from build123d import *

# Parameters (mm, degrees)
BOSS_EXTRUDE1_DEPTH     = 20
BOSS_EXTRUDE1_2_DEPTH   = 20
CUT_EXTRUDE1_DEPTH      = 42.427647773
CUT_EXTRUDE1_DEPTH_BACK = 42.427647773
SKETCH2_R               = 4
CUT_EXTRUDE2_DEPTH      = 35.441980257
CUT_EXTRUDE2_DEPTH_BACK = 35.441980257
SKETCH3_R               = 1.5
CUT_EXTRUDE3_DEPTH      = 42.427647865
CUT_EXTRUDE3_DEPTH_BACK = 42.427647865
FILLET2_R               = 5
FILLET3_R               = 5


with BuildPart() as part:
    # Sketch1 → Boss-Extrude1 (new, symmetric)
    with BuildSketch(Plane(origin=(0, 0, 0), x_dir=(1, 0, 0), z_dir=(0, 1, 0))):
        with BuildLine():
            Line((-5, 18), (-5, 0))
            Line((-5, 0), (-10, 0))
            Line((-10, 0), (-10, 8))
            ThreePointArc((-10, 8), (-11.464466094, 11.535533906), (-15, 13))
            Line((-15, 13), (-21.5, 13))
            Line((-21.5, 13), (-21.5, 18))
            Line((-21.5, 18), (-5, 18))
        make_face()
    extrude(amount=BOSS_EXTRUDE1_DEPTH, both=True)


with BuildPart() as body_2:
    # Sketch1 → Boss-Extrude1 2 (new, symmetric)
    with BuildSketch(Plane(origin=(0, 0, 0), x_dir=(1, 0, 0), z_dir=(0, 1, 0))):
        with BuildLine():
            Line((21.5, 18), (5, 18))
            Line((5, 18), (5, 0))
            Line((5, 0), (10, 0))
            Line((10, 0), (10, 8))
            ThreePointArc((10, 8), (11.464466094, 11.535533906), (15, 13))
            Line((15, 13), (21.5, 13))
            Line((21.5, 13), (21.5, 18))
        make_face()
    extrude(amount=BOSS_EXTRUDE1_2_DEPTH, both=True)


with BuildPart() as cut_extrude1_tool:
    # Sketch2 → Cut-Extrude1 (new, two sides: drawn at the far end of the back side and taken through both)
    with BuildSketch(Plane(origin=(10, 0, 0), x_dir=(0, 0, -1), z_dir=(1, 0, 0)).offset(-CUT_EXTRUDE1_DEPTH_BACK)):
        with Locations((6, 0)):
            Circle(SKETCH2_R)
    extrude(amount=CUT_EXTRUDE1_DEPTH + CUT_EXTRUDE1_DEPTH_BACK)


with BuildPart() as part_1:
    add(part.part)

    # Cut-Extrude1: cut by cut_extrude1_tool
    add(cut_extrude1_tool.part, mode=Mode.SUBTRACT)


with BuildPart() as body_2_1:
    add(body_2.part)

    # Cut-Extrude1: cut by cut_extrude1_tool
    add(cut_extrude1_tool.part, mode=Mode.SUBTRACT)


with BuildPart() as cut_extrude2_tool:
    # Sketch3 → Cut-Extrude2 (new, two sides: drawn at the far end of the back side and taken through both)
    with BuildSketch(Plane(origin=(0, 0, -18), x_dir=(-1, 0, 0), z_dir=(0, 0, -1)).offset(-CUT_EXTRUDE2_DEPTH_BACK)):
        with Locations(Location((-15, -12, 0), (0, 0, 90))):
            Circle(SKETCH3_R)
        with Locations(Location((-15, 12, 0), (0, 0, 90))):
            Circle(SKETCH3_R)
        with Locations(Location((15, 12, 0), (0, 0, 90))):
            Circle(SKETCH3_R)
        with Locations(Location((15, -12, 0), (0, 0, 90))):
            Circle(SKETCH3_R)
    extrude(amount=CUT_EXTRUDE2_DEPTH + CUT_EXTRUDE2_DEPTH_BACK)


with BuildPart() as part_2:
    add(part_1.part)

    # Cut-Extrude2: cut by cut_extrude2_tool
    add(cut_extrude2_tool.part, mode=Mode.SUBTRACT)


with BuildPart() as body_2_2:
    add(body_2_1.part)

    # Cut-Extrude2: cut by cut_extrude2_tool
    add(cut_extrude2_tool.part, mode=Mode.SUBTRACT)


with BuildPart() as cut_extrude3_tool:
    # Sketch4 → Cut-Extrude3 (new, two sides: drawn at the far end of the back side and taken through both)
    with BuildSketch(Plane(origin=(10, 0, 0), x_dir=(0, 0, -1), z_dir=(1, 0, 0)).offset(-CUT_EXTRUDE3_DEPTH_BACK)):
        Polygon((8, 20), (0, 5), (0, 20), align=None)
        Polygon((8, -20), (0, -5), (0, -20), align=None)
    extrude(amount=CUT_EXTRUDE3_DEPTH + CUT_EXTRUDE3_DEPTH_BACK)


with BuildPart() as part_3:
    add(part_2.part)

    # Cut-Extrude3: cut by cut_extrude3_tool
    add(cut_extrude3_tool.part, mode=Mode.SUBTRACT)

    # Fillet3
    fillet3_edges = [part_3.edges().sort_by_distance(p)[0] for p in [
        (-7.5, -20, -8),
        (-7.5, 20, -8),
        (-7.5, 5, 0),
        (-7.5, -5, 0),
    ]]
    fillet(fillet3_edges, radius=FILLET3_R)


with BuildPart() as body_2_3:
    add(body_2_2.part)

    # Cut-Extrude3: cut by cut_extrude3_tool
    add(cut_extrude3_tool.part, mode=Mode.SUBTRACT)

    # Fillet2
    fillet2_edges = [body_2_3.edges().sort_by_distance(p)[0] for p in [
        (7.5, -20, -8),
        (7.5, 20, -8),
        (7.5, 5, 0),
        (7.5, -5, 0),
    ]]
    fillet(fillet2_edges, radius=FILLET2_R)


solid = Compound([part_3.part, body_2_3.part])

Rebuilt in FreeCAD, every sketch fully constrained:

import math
import FreeCAD as App
import Part
import Sketcher

V = App.Vector


def edges_at(feature, points):
    """Names of the edges that pass closest to the given points."""
    edges = feature.Shape.Edges
    near = lambda p: min(range(len(edges)), key=lambda i: edges[i].distToShape(Part.Vertex(*p))[0])
    return sorted({f"Edge{near(p) + 1}" for p in points})

doc = App.newDocument("Part")
params = doc.addObject("Spreadsheet::Sheet", "Params")
for row, (alias, value) in enumerate([
    ("sketch1_radius", "5 mm"),
    ("sketch1_width", "5 mm"),
    ("sketch1_height", "18 mm"),
    ("sketch1_width2", "16.5 mm"),
    ("pad1_length", "40 mm"),
    ("sketch2_radius", "5 mm"),
    ("sketch2_width", "5 mm"),
    ("sketch2_height", "18 mm"),
    ("sketch2_width2", "16.5 mm"),
    ("pad2_length", "40 mm"),
    ("sketch3_diameter", "8 mm"),
    ("pad3_length", "42.427648 mm"),
    ("pad3_length2", "42.427648 mm"),
    ("sketch4_diameter", "3 mm"),
    ("pad4_length", "35.44198 mm"),
    ("pad4_length2", "35.44198 mm"),
    ("sketch5_width", "15 mm"),
    ("sketch5_height", "8 mm"),
    ("pad5_length", "42.427648 mm"),
    ("pad5_length2", "42.427648 mm"),
    ("fillet_radius", "5 mm"),
    ("fillet2_radius", "5 mm"),
], start=1):
    params.set(f"A{row}", alias)
    params.set(f"B{row}", "=" + value)
    params.setAlias(f"B{row}", alias)

body = doc.addObject("PartDesign::Body", "Body")

sketch1 = body.newObject("Sketcher::SketchObject", "Sketch")
sketch1.AttachmentSupport = (doc.getObject("XZ_Plane"), [""])
sketch1.MapMode = "FlatFace"
sketch1.addGeometry([
    Part.LineSegment(V(-5, 0, 0), V(-5, -18, 0)),
    Part.LineSegment(V(-5, -18, 0), V(-21.5, -18, 0)),
    Part.LineSegment(V(-21.5, -18, 0), V(-21.5, -13, 0)),
    Part.LineSegment(V(-21.5, -13, 0), V(-15, -13, 0)),
    Part.ArcOfCircle(Part.Circle(V(-15, -8, 0), V(0, 0, 1), 5), math.radians(-90), math.radians(0)),
    Part.LineSegment(V(-10, -8, 0), V(-10, 0, 0)),
    Part.LineSegment(V(-10, 0, 0), V(-5, 0, 0)),
], False)
sketch1.addConstraint([
    Sketcher.Constraint("Coincident", 0, 2, 1, 1),
    Sketcher.Constraint("Coincident", 1, 2, 2, 1),
    Sketcher.Constraint("Coincident", 2, 2, 3, 1),
    Sketcher.Constraint("Tangent", 3, 2, 4, 1),
    Sketcher.Constraint("Tangent", 4, 2, 5, 1),
    Sketcher.Constraint("Coincident", 5, 2, 6, 1),
    Sketcher.Constraint("Coincident", 6, 2, 0, 1),
    Sketcher.Constraint("Vertical", 0),
    Sketcher.Constraint("Horizontal", 1),
    Sketcher.Constraint("Vertical", 2),
    Sketcher.Constraint("Horizontal", 3),
    Sketcher.Constraint("Vertical", 5),
    Sketcher.Constraint("Horizontal", 6),
    Sketcher.Constraint("PointOnObject", 5, 2, -1),
    Sketcher.Constraint("Equal", 6, 2),
    Sketcher.Constraint("Radius", 4, 5.0),
    Sketcher.Constraint("DistanceX", 6, 1, 6, 2, 5.0),
    Sketcher.Constraint("DistanceY", 0, 2, 0, 1, 18.0),
    Sketcher.Constraint("DistanceX", 1, 2, 1, 1, 16.5),
    Sketcher.Constraint("DistanceX", 4, 3, -1, 1, 15.0),
])
sketch1.setExpression("Constraints[15]", "Params.sketch1_radius")
sketch1.setExpression("Constraints[16]", "Params.sketch1_width")
sketch1.setExpression("Constraints[17]", "Params.sketch1_height")
sketch1.setExpression("Constraints[18]", "Params.sketch1_width2")
pad1 = body.newObject("PartDesign::Pad", "Pad")
pad1.Profile = sketch1
pad1.setExpression("Length", "Params.pad1_length")
pad1.Midplane = True
body2 = doc.addObject("PartDesign::Body", "Body001")

sketch2 = body2.newObject("Sketcher::SketchObject", "Sketch001")
sketch2.AttachmentSupport = (doc.getObject("XZ_Plane001"), [""])
sketch2.MapMode = "FlatFace"
sketch2.addGeometry([
    Part.LineSegment(V(21.5, -18, 0), V(5, -18, 0)),
    Part.LineSegment(V(5, -18, 0), V(5, 0, 0)),
    Part.LineSegment(V(5, 0, 0), V(10, 0, 0)),
    Part.LineSegment(V(10, 0, 0), V(10, -8, 0)),
    Part.ArcOfCircle(Part.Circle(V(15, -8, 0), V(0, 0, 1), 5), math.radians(180), math.radians(270)),
    Part.LineSegment(V(15, -13, 0), V(21.5, -13, 0)),
    Part.LineSegment(V(21.5, -13, 0), V(21.5, -18, 0)),
], False)
sketch2.addConstraint([
    Sketcher.Constraint("Coincident", 0, 2, 1, 1),
    Sketcher.Constraint("Coincident", 1, 2, 2, 1),
    Sketcher.Constraint("Coincident", 2, 2, 3, 1),
    Sketcher.Constraint("Tangent", 3, 2, 4, 1),
    Sketcher.Constraint("Tangent", 4, 2, 5, 1),
    Sketcher.Constraint("Coincident", 5, 2, 6, 1),
    Sketcher.Constraint("Coincident", 6, 2, 0, 1),
    Sketcher.Constraint("Horizontal", 0),
    Sketcher.Constraint("Vertical", 1),
    Sketcher.Constraint("Horizontal", 2),
    Sketcher.Constraint("Vertical", 3),
    Sketcher.Constraint("Horizontal", 5),
    Sketcher.Constraint("Vertical", 6),
    Sketcher.Constraint("PointOnObject", 1, 2, -1),
    Sketcher.Constraint("Equal", 2, 6),
    Sketcher.Constraint("Radius", 4, 5.0),
    Sketcher.Constraint("DistanceX", 2, 1, 2, 2, 5.0),
    Sketcher.Constraint("DistanceY", 1, 1, 1, 2, 18.0),
    Sketcher.Constraint("DistanceX", 0, 2, 0, 1, 16.5),
    Sketcher.Constraint("DistanceX", -1, 1, 4, 3, 15.0),
])
sketch2.setExpression("Constraints[15]", "Params.sketch2_radius")
sketch2.setExpression("Constraints[16]", "Params.sketch2_width")
sketch2.setExpression("Constraints[17]", "Params.sketch2_height")
sketch2.setExpression("Constraints[18]", "Params.sketch2_width2")
pad2 = body2.newObject("PartDesign::Pad", "Pad001")
pad2.Profile = sketch2
pad2.setExpression("Length", "Params.pad2_length")
pad2.Midplane = True
body3 = doc.addObject("PartDesign::Body", "Body002")

sketch3 = body3.newObject("Sketcher::SketchObject", "Sketch002")
sketch3.AttachmentSupport = (doc.getObject("YZ_Plane002"), [""])
sketch3.MapMode = "FlatFace"
sketch3.AttachmentOffset = App.Placement(V(0, 0, 10), App.Rotation())
sketch3.addGeometry(Part.Circle(V(0, -6, 0), V(0, 0, 1), 4), False)
sketch3.addConstraint([
    Sketcher.Constraint("PointOnObject", 0, 3, -2),
    Sketcher.Constraint("Diameter", 0, 8.0),
    Sketcher.Constraint("DistanceY", 0, 3, -1, 1, 6.0),
])
sketch3.setExpression("Constraints[1]", "Params.sketch3_diameter")
pad3 = body3.newObject("PartDesign::Pad", "Pad002")
pad3.Profile = sketch3
pad3.Type = "TwoLengths"
pad3.setExpression("Length", "Params.pad3_length")
pad3.setExpression("Length2", "Params.pad3_length2")
doc.recompute()

body4 = doc.addObject("PartDesign::Body", "Body003")
body4.BaseFeature = body3
boolean = body.newObject("PartDesign::Boolean", "Boolean")
boolean.Type = "Cut"
boolean.addObjects([body4])
doc.recompute()

boolean2 = body2.newObject("PartDesign::Boolean", "Boolean001")
boolean2.Type = "Cut"
boolean2.addObjects([body3])
body5 = doc.addObject("PartDesign::Body", "Body004")
body5.AllowCompound = True

sketch4 = body5.newObject("Sketcher::SketchObject", "Sketch003")
sketch4.AttachmentSupport = (doc.getObject("XY_Plane004"), [""])
sketch4.MapMode = "FlatFace"
sketch4.AttachmentOffset = App.Placement(V(0, 0, -18), App.Rotation())
sketch4.addGeometry([
    Part.Circle(V(15, -12, 0), V(0, 0, 1), 1.5),
    Part.Circle(V(15, 12, 0), V(0, 0, 1), 1.5),
    Part.Circle(V(-15, 12, 0), V(0, 0, 1), 1.5),
    Part.Circle(V(-15, -12, 0), V(0, 0, 1), 1.5),
], False)
sketch4.addConstraint([
    Sketcher.Constraint("Equal", 0, 1),
    Sketcher.Constraint("Equal", 1, 2),
    Sketcher.Constraint("Equal", 2, 3),
    Sketcher.Constraint("Symmetric", 0, 3, 2, 3, -1, 1),
    Sketcher.Constraint("Symmetric", 1, 3, 3, 3, -1, 1),
    Sketcher.Constraint("Symmetric", 1, 3, 2, 3, -2),
    Sketcher.Constraint("Diameter", 0, 3.0),
    Sketcher.Constraint("DistanceX", -1, 1, 0, 3, 15.0),
    Sketcher.Constraint("DistanceY", 0, 3, -1, 1, 12.0),
])
sketch4.setExpression("Constraints[6]", "Params.sketch4_diameter")
pad4 = body5.newObject("PartDesign::Pad", "Pad003")
pad4.Profile = sketch4
pad4.Type = "TwoLengths"
pad4.setExpression("Length", "Params.pad4_length")
pad4.setExpression("Length2", "Params.pad4_length2")
pad4.Reversed = True
doc.recompute()

body6 = doc.addObject("PartDesign::Body", "Body005")
body6.BaseFeature = body5
boolean3 = body.newObject("PartDesign::Boolean", "Boolean002")
boolean3.Type = "Cut"
boolean3.addObjects([body6])
doc.recompute()

boolean4 = body2.newObject("PartDesign::Boolean", "Boolean003")
boolean4.Type = "Cut"
boolean4.addObjects([body5])
body7 = doc.addObject("PartDesign::Body", "Body006")
body7.AllowCompound = True

sketch5 = body7.newObject("Sketcher::SketchObject", "Sketch004")
sketch5.AttachmentSupport = (doc.getObject("YZ_Plane006"), [""])
sketch5.MapMode = "FlatFace"
sketch5.AttachmentOffset = App.Placement(V(0, 0, 10), App.Rotation())
sketch5.addGeometry([
    Part.LineSegment(V(5, 0, 0), V(20, -8, 0)),
    Part.LineSegment(V(20, -8, 0), V(20, 0, 0)),
    Part.LineSegment(V(20, 0, 0), V(5, 0, 0)),
    Part.LineSegment(V(-20, -8, 0), V(-5, 0, 0)),
    Part.LineSegment(V(-5, 0, 0), V(-20, 0, 0)),
    Part.LineSegment(V(-20, 0, 0), V(-20, -8, 0)),
], False)
sketch5.addConstraint([
    Sketcher.Constraint("Coincident", 0, 2, 1, 1),
    Sketcher.Constraint("Coincident", 1, 2, 2, 1),
    Sketcher.Constraint("Coincident", 2, 2, 0, 1),
    Sketcher.Constraint("Coincident", 3, 2, 4, 1),
    Sketcher.Constraint("Coincident", 4, 2, 5, 1),
    Sketcher.Constraint("Coincident", 5, 2, 3, 1),
    Sketcher.Constraint("Vertical", 1),
    Sketcher.Constraint("Horizontal", 2),
    Sketcher.Constraint("Horizontal", 4),
    Sketcher.Constraint("Vertical", 5),
    Sketcher.Constraint("Symmetric", 2, 2, 3, 2, -1, 1),
    Sketcher.Constraint("Symmetric", 1, 2, 4, 2, -2),
    Sketcher.Constraint("Horizontal", 0, 2, 5, 2),
    Sketcher.Constraint("DistanceX", 2, 2, 2, 1, 15.0),
    Sketcher.Constraint("DistanceY", 1, 1, 1, 2, 8.0),
    Sketcher.Constraint("DistanceX", -1, 1, 0, 2, 20.0),
])
sketch5.setExpression("Constraints[13]", "Params.sketch5_width")
sketch5.setExpression("Constraints[14]", "Params.sketch5_height")
pad5 = body7.newObject("PartDesign::Pad", "Pad004")
pad5.Profile = sketch5
pad5.Type = "TwoLengths"
pad5.setExpression("Length", "Params.pad5_length")
pad5.setExpression("Length2", "Params.pad5_length2")
doc.recompute()

body8 = doc.addObject("PartDesign::Body", "Body007")
body8.BaseFeature = body7
boolean5 = body.newObject("PartDesign::Boolean", "Boolean004")
boolean5.Type = "Cut"
boolean5.addObjects([body8])
doc.recompute()

fillet = body.newObject("PartDesign::Fillet", "Fillet")
fillet.Base = (boolean5, edges_at(boolean5, [
    (-7.5, -20, -8),
    (-7.5, 20, -8),
    (-7.5, 5, 0),
    (-7.5, -5, 0),
]))
fillet.setExpression("Radius", "Params.fillet_radius")
doc.recompute()

boolean6 = body2.newObject("PartDesign::Boolean", "Boolean005")
boolean6.Type = "Cut"
boolean6.addObjects([body7])
doc.recompute()

fillet2 = body2.newObject("PartDesign::Fillet", "Fillet001")
fillet2.Base = (boolean6, edges_at(boolean6, [
    (7.5, -20, -8),
    (7.5, 20, -8),
    (7.5, 5, 0),
    (7.5, -5, 0),
]))
fillet2.setExpression("Radius", "Params.fillet2_radius")

doc.recompute()
